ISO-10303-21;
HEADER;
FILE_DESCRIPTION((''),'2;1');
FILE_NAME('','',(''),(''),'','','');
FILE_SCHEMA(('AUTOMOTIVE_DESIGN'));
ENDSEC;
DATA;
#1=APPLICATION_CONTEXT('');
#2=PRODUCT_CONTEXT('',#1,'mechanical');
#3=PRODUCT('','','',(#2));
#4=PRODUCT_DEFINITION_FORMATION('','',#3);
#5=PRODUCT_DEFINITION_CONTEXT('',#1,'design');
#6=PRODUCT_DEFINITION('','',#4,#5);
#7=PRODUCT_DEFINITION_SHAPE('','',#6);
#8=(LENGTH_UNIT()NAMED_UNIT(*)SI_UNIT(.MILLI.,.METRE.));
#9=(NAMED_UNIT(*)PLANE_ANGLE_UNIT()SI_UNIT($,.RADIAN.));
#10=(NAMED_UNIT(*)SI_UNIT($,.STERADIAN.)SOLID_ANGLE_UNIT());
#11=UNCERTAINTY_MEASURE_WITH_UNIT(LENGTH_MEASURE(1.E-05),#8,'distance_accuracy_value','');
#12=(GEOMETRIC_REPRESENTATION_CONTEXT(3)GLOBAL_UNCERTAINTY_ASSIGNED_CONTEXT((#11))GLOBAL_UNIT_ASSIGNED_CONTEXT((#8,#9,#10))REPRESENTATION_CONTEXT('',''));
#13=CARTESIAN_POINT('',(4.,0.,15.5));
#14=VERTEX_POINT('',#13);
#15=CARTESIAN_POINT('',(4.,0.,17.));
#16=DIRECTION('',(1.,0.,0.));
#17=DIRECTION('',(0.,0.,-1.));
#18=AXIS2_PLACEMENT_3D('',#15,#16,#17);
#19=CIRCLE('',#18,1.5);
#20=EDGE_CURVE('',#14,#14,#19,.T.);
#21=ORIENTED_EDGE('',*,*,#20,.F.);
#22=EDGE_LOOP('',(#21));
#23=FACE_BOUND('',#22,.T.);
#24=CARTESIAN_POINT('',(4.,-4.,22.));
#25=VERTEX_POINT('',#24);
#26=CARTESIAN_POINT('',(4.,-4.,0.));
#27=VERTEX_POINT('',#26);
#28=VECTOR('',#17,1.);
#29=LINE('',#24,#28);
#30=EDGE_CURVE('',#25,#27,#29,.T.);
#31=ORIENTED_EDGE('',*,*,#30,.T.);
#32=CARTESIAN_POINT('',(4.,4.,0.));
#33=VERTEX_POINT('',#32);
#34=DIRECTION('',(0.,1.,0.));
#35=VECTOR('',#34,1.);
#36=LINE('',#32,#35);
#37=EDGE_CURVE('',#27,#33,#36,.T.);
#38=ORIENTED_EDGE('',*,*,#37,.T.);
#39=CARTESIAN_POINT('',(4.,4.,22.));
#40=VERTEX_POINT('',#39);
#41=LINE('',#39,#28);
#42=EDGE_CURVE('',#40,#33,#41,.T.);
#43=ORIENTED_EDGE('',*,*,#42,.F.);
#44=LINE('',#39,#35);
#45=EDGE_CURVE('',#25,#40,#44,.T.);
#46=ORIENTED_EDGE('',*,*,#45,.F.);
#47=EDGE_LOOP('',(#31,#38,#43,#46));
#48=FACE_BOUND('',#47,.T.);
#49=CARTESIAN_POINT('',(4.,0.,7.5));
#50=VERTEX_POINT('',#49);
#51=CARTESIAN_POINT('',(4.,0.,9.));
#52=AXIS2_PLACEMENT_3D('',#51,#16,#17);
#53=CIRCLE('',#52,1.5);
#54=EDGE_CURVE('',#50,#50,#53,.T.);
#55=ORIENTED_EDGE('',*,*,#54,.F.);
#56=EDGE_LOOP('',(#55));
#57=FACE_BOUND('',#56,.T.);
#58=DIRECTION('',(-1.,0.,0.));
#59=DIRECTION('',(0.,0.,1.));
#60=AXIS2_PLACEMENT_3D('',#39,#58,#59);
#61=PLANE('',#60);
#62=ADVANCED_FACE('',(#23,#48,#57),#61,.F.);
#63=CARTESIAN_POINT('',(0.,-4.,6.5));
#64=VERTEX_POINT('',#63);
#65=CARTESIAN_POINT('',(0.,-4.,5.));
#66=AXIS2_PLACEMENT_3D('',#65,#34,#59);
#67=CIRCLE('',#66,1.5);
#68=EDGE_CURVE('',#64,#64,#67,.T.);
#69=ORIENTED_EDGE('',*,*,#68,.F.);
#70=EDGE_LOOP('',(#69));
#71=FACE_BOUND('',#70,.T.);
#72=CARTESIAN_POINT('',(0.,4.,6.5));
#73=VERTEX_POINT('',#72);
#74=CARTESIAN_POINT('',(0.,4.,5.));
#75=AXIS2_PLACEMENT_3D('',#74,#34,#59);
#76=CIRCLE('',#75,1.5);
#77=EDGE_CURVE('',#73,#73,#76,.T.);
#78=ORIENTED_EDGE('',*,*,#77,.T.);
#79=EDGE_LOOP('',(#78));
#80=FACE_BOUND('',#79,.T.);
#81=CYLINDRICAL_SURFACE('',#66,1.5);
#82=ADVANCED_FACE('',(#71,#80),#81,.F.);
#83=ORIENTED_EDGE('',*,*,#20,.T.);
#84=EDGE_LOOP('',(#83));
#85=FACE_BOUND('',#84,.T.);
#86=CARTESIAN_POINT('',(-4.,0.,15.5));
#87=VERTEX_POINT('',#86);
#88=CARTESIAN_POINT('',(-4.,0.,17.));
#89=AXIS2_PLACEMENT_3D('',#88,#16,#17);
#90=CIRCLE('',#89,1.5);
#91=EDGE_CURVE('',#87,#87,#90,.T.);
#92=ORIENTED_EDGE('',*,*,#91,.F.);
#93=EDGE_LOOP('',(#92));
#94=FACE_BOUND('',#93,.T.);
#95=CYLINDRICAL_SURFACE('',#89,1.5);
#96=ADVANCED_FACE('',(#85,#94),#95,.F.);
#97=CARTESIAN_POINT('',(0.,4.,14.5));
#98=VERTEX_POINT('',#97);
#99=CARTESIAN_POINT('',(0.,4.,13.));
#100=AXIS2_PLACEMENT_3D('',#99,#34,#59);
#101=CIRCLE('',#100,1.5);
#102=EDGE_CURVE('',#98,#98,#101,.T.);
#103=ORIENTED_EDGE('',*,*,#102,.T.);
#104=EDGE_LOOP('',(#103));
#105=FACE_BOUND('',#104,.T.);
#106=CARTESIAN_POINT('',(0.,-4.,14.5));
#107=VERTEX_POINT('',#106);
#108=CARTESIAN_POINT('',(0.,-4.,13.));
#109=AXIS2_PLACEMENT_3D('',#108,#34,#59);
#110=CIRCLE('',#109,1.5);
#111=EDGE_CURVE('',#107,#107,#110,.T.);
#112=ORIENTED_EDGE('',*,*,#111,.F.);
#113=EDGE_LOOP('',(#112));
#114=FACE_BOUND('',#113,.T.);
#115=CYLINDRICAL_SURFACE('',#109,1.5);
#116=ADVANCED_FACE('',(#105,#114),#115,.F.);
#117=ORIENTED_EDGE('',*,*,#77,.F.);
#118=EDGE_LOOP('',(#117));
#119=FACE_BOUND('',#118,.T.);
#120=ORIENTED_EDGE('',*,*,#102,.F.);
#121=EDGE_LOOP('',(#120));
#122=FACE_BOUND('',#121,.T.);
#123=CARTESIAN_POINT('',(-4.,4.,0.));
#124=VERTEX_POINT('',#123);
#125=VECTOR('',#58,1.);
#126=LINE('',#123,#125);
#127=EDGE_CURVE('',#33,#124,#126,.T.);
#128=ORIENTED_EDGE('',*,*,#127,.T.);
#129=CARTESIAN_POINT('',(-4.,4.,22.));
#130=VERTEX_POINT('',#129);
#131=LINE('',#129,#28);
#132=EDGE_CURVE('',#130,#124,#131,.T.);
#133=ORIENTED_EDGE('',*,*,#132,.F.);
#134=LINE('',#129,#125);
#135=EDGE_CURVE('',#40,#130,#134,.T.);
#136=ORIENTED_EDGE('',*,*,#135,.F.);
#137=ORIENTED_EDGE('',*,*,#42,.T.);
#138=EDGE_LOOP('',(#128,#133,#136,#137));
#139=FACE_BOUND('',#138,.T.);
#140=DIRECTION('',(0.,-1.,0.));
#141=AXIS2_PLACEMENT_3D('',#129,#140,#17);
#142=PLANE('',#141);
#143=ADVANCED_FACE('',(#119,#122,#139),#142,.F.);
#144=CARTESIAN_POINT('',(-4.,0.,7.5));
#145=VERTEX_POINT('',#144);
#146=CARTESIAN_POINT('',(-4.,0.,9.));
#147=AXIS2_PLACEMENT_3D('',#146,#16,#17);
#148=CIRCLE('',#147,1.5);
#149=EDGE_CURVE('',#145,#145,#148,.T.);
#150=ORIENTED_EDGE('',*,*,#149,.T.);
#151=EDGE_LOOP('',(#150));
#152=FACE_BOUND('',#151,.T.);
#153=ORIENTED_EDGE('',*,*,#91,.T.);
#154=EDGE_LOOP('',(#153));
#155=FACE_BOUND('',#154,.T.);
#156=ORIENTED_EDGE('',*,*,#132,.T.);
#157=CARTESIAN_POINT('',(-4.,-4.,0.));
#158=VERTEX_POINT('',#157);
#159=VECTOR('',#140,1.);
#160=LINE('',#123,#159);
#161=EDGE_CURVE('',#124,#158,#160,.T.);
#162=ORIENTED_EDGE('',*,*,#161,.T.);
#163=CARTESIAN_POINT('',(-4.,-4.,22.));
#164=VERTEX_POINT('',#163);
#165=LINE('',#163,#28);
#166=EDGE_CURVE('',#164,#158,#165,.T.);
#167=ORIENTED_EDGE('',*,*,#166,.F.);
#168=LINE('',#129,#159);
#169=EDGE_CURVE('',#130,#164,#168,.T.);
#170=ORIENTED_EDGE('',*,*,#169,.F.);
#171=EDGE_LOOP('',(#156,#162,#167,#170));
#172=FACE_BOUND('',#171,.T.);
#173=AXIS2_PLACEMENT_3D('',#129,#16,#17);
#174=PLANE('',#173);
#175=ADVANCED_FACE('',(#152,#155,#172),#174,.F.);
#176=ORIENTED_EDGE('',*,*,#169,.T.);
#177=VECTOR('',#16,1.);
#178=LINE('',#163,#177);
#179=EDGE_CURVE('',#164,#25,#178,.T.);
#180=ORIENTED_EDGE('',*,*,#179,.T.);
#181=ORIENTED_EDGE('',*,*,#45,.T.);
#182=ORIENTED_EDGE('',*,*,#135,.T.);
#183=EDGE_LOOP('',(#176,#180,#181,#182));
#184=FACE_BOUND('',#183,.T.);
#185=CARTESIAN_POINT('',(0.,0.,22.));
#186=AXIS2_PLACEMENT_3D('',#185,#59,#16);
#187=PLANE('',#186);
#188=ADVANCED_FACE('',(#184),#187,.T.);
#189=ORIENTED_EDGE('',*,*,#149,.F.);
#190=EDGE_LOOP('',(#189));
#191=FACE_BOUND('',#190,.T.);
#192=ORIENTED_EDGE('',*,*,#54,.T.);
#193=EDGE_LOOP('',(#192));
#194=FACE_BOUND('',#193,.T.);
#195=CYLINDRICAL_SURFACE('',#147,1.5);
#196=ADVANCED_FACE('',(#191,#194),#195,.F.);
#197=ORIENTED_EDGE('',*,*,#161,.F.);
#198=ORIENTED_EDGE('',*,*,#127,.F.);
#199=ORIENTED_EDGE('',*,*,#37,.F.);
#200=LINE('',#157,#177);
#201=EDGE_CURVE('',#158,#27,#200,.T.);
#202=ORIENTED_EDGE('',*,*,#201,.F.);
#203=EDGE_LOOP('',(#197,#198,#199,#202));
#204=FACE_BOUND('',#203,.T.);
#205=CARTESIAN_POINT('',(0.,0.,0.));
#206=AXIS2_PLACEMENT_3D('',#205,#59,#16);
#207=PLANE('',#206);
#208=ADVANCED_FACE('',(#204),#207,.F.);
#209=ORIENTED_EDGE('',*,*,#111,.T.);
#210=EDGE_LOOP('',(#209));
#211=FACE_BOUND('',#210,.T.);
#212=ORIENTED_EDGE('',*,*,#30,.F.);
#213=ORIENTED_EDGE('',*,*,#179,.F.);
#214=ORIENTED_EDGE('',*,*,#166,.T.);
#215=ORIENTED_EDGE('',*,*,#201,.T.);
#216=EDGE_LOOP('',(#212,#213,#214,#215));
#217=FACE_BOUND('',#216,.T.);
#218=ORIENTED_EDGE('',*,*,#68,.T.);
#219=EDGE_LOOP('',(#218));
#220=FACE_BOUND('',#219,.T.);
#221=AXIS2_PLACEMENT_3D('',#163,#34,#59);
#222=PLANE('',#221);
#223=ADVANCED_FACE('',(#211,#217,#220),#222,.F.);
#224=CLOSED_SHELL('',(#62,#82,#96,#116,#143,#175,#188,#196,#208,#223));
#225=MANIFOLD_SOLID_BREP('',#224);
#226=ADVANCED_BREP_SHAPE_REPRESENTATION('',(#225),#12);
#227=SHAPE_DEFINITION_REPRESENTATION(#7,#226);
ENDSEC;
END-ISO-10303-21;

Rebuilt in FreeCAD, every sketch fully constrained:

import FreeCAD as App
import Part
import Sketcher

doc = App.newDocument("Part")
params = doc.addObject("Spreadsheet::Sheet", "Params")
for row, (alias, value) in enumerate([
    ("sketch1_width", "8 mm"),
    ("pad1_length", "22 mm"),
    ("sketch2_diameter", "3 mm"),
    ("sketch3_diameter", "3 mm"),
], start=1):
    params.set(f"A{row}", alias)
    params.set(f"B{row}", "=" + value)
    params.setAlias(f"B{row}", alias)

body = doc.addObject("PartDesign::Body", "Body")

sketch1 = body.newObject("Sketcher::SketchObject", "Sketch")
sketch1.AttachmentSupport = (doc.getObject("XY_Plane"), [""])
sketch1.MapMode = "FlatFace"
sketch1.addGeometry([
    Part.LineSegment(App.Vector(-4, 4, 0), App.Vector(-4, -4, 0)),
    Part.LineSegment(App.Vector(-4, -4, 0), App.Vector(4, -4, 0)),
    Part.LineSegment(App.Vector(4, -4, 0), App.Vector(4, 4, 0)),
    Part.LineSegment(App.Vector(4, 4, 0), App.Vector(-4, 4, 0)),
], False)
sketch1.addConstraint([
    Sketcher.Constraint("Coincident", 0, 2, 1, 1),
    Sketcher.Constraint("Coincident", 1, 2, 2, 1),
    Sketcher.Constraint("Coincident", 2, 2, 3, 1),
    Sketcher.Constraint("Coincident", 3, 2, 0, 1),
    Sketcher.Constraint("Vertical", 0),
    Sketcher.Constraint("Horizontal", 1),
    Sketcher.Constraint("Vertical", 2),
    Sketcher.Constraint("Horizontal", 3),
    Sketcher.Constraint("Symmetric", 0, 2, 2, 2, -1, 1),
    Sketcher.Constraint("Equal", 3, 0),
    Sketcher.Constraint("DistanceX", 1, 1, 1, 2, 8.0),
])
sketch1.setExpression("Constraints[10]", "Params.sketch1_width")
pad1 = body.newObject("PartDesign::Pad", "Pad")
pad1.Profile = sketch1
pad1.setExpression("Length", "Params.pad1_length")

sketch2 = body.newObject("Sketcher::SketchObject", "Sketch001")
sketch2.AttachmentSupport = (doc.getObject("XZ_Plane"), [""])
sketch2.MapMode = "FlatFace"
sketch2.AttachmentOffset = App.Placement(App.Vector(0, 0, -4), App.Rotation())
sketch2.addGeometry([
    Part.Circle(App.Vector(0, 5, 0), App.Vector(0, 0, 1), 1.5),
    Part.Circle(App.Vector(0, 13, 0), App.Vector(0, 0, 1), 1.5),
], False)
sketch2.addConstraint([
    Sketcher.Constraint("Equal", 0, 1),
    Sketcher.Constraint("PointOnObject", 0, 3, -2),
    Sketcher.Constraint("PointOnObject", 1, 3, -2),
    Sketcher.Constraint("Diameter", 0, 3.0),
    Sketcher.Constraint("DistanceY", -1, 1, 0, 3, 5.0),
    Sketcher.Constraint("DistanceY", -1, 1, 1, 3, 13.0),
])
sketch2.setExpression("Constraints[3]", "Params.sketch2_diameter")
pocket1 = body.newObject("PartDesign::Pocket", "Pocket")
pocket1.Profile = sketch2
pocket1.Type = "ThroughAll"
pocket1.Reversed = True

sketch3 = body.newObject("Sketcher::SketchObject", "Sketch002")
sketch3.AttachmentSupport = (doc.getObject("YZ_Plane"), [""])
sketch3.MapMode = "FlatFace"
sketch3.AttachmentOffset = App.Placement(App.Vector(0, 0, 4), App.Rotation())
sketch3.addGeometry([
    Part.Circle(App.Vector(0, 17, 0), App.Vector(0, 0, 1), 1.5),
    Part.Circle(App.Vector(0, 9, 0), App.Vector(0, 0, 1), 1.5),
], False)
sketch3.addConstraint([
    Sketcher.Constraint("Equal", 0, 1),
    Sketcher.Constraint("PointOnObject", 0, 3, -2),
    Sketcher.Constraint("PointOnObject", 1, 3, -2),
    Sketcher.Constraint("Diameter", 0, 3.0),
    Sketcher.Constraint("DistanceY", -1, 1, 0, 3, 17.0),
    Sketcher.Constraint("DistanceY", -1, 1, 1, 3, 9.0),
])
sketch3.setExpression("Constraints[3]", "Params.sketch3_diameter")
pocket2 = body.newObject("PartDesign::Pocket", "Pocket001")
pocket2.Profile = sketch3
pocket2.Type = "ThroughAll"

doc.recompute()
